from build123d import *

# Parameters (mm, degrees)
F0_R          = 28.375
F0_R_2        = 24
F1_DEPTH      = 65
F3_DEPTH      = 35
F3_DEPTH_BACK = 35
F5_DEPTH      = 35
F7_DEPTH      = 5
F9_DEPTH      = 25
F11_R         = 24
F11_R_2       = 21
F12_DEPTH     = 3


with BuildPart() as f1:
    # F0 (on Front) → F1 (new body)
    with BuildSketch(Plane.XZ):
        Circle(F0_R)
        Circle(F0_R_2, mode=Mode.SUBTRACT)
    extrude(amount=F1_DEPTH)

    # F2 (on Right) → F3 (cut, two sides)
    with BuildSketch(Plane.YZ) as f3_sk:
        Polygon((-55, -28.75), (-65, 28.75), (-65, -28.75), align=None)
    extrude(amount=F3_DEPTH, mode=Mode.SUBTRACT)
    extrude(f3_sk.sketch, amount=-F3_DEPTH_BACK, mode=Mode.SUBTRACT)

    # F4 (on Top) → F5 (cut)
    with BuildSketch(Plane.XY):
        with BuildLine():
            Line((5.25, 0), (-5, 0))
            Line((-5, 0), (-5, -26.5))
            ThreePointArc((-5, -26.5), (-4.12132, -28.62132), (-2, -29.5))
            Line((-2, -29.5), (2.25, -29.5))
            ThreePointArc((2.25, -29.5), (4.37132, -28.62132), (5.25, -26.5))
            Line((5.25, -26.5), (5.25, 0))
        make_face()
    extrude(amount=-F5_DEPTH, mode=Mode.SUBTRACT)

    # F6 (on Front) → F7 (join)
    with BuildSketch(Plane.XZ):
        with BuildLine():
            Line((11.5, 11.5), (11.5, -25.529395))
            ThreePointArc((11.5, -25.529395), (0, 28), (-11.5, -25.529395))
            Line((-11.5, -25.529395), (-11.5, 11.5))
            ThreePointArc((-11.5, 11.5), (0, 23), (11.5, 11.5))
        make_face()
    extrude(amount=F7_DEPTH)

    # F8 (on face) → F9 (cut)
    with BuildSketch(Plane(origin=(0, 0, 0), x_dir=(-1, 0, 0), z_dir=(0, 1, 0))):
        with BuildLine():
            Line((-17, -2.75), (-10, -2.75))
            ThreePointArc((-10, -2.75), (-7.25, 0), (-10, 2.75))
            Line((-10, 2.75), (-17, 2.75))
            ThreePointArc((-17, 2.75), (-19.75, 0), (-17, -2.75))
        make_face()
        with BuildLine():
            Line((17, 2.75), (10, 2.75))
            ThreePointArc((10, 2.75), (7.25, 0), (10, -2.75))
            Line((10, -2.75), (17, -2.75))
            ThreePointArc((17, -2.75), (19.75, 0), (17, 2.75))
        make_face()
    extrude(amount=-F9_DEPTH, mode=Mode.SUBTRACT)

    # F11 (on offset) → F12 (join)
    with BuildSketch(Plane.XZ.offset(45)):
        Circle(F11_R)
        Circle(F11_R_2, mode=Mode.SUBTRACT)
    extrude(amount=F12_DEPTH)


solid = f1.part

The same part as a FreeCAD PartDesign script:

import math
import FreeCAD as App
import Part
import Sketcher
from FreeCAD import Vector
Q = App.Units.Quantity


def add_polygon(sketch, points):
    """Adds a closed chain of lines whose ends are joined by coincident constraints."""
    first, n = sketch.GeometryCount, len(points)
    for a, b in zip(points, points[1:] + points[:1]):
        sketch.addGeometry(Part.LineSegment(App.Vector(*a, 0), App.Vector(*b, 0)), False)
    for i in range(n):
        sketch.addConstraint(Sketcher.Constraint("Coincident", first + i, 2, first + (i + 1) % n, 1))

doc = App.newDocument("Part")
body = doc.addObject("PartDesign::Body", "Body")

sketch1 = body.newObject("Sketcher::SketchObject", "Sketch")
sketch1.AttachmentSupport = (doc.getObject("XZ_Plane"), [""])
sketch1.MapMode = "FlatFace"
sketch1.addGeometry([
    Part.Circle(Vector(0, 0, 0), Vector(0, 0, 1), 28.375),
    Part.Circle(Vector(0, 0, 0), Vector(0, 0, 1), 24),
], False)
sketch1.addConstraint([
    Sketcher.Constraint("Coincident", 0, 3, -1, 1),
    Sketcher.Constraint("Coincident", 1, 3, -1, 1),
    Sketcher.Constraint("Diameter", 1, Q("48 mm")),
    Sketcher.Constraint("Diameter", 0, Q("56.75 mm")),
])
pad1 = body.newObject("PartDesign::Pad", "Pad")
pad1.Profile = sketch1
pad1.Length = 65

sketch2 = body.newObject("Sketcher::SketchObject", "Sketch001")
sketch2.AttachmentSupport = (doc.getObject("YZ_Plane"), [""])
sketch2.MapMode = "FlatFace"
add_polygon(sketch2, [(-55, -28.75), (-65, 28.75), (-65, -28.75)])
sketch2.addConstraint([
    Sketcher.Constraint("Vertical", 1),
    Sketcher.Constraint("Horizontal", 2),
    Sketcher.Constraint("DistanceX", 2, 1, 2, 2, Q("10 mm")),
    Sketcher.Constraint("DistanceY", 1, 2, 1, 1, Q("57.5 mm")),
    Sketcher.Constraint("DistanceX", 0, 2, -1, 1, Q("65 mm")),
    Sketcher.Constraint("DistanceY", -1, 1, 0, 2, Q("28.75 mm")),
])
pocket1 = body.newObject("PartDesign::Pocket", "Pocket")
pocket1.Profile = sketch2
pocket1.Type = "ThroughAll"
pocket1.Midplane = True

sketch3 = body.newObject("Sketcher::SketchObject", "Sketch002")
sketch3.AttachmentSupport = (doc.getObject("XY_Plane"), [""])
sketch3.MapMode = "FlatFace"
sketch3.addGeometry([
    Part.LineSegment(Vector(5.25, 0, 0), Vector(-5, 0, 0)),
    Part.LineSegment(Vector(-5, 0, 0), Vector(-5, -26.5, 0)),
    Part.ArcOfCircle(Part.Circle(Vector(-1.999999, -26.499999, 0), Vector(0, 0, 1), 3.000001), math.radians(-179.999978), math.radians(-90.000022)),
    Part.LineSegment(Vector(-2, -29.5, 0), Vector(2.25, -29.5, 0)),
    Part.ArcOfCircle(Part.Circle(Vector(2.249999, -26.499999, 0), Vector(0, 0, 1), 3.000001), math.radians(-89.999978), math.radians(-0.000022)),
    Part.LineSegment(Vector(5.25, -26.5, 0), Vector(5.25, 0, 0)),
], False)
sketch3.addConstraint([
    Sketcher.Constraint("Coincident", 0, 2, 1, 1),
    Sketcher.Constraint("Tangent", 1, 2, 2, 1),
    Sketcher.Constraint("Tangent", 2, 2, 3, 1),
    Sketcher.Constraint("Tangent", 3, 2, 4, 1),
    Sketcher.Constraint("Tangent", 4, 2, 5, 1),
    Sketcher.Constraint("Coincident", 5, 2, 0, 1),
    Sketcher.Constraint("Horizontal", 0),
    Sketcher.Constraint("Vertical", 1),
    Sketcher.Constraint("Horizontal", 3),
    Sketcher.Constraint("Vertical", 5),
    Sketcher.Constraint("Equal", 2, 4),
    Sketcher.Constraint("PointOnObject", 0, 2, -1),
    Sketcher.Constraint("Radius", 2, Q("3.000001 mm")),
    Sketcher.Constraint("DistanceY", 1, 2, 1, 1, Q("26.5 mm")),
    Sketcher.Constraint("DistanceX", 2, 3, -1, 1, Q("1.999999 mm")),
    Sketcher.Constraint("DistanceX", 0, 2, 0, 1, Q("10.25 mm")),
])
pocket2 = body.newObject("PartDesign::Pocket", "Pocket001")
pocket2.Profile = sketch3
pocket2.Length = 35

sketch4 = body.newObject("Sketcher::SketchObject", "Sketch003")
sketch4.AttachmentSupport = (doc.getObject("XZ_Plane"), [""])
sketch4.MapMode = "FlatFace"
sketch4.addGeometry([
    Part.LineSegment(Vector(11.5, 11.5, 0), Vector(11.5, -25.529395, 0)),
    Part.ArcOfCircle(Part.Circle(Vector(0, 0, 0), Vector(0, 0, 1), 28), math.radians(-65.750287), math.radians(245.750287)),
    Part.LineSegment(Vector(-11.5, -25.529395, 0), Vector(-11.5, 11.5, 0)),
    Part.ArcOfCircle(Part.Circle(Vector(0, 11.5, 0), Vector(0, 0, 1), 11.5), math.radians(0), math.radians(180)),
], False)
sketch4.addConstraint([
    Sketcher.Constraint("Coincident", 0, 2, 1, 1),
    Sketcher.Constraint("Coincident", 1, 2, 2, 1),
    Sketcher.Constraint("Tangent", 2, 2, 3, 2),
    Sketcher.Constraint("Tangent", 3, 1, 0, 1),
    Sketcher.Constraint("Vertical", 0),
    Sketcher.Constraint("Vertical", 2),
    Sketcher.Constraint("Coincident", 1, 3, -1, 1),
    Sketcher.Constraint("PointOnObject", 3, 3, -2),
    Sketcher.Constraint("Radius", 1, Q("28 mm")),
    Sketcher.Constraint("Radius", 3, Q("11.5 mm")),
    Sketcher.Constraint("DistanceY", -1, 1, 3, 3, Q("11.5 mm")),
])
pad2 = body.newObject("PartDesign::Pad", "Pad001")
pad2.Profile = sketch4
pad2.Length = 5

sketch5 = body.newObject("Sketcher::SketchObject", "Sketch004")
sketch5.AttachmentSupport = (doc.getObject("XZ_Plane"), [""])
sketch5.MapMode = "FlatFace"
sketch5.addGeometry([
    Part.LineSegment(Vector(17, -2.75, 0), Vector(10, -2.75, 0)),
    Part.ArcOfCircle(Part.Circle(Vector(10, 0, 0), Vector(0, 0, 1), 2.75), math.radians(90), math.radians(270)),
    Part.LineSegment(Vector(10, 2.75, 0), Vector(17, 2.75, 0)),
    Part.ArcOfCircle(Part.Circle(Vector(17, 0, 0), Vector(0, 0, 1), 2.75), math.radians(-90), math.radians(90)),
    Part.LineSegment(Vector(-17, 2.75, 0), Vector(-10, 2.75, 0)),
    Part.ArcOfCircle(Part.Circle(Vector(-10, 0, 0), Vector(0, 0, 1), 2.75), math.radians(-90), math.radians(90)),
    Part.LineSegment(Vector(-10, -2.75, 0), Vector(-17, -2.75, 0)),
    Part.ArcOfCircle(Part.Circle(Vector(-17, 0, 0), Vector(0, 0, 1), 2.75), math.radians(90), math.radians(270)),
], False)
sketch5.addConstraint([
    Sketcher.Constraint("Tangent", 0, 2, 1, 2),
    Sketcher.Constraint("Tangent", 1, 1, 2, 1),
    Sketcher.Constraint("Tangent", 2, 2, 3, 2),
    Sketcher.Constraint("Tangent", 3, 1, 0, 1),
    Sketcher.Constraint("Tangent", 4, 2, 5, 2),
    Sketcher.Constraint("Tangent", 5, 1, 6, 1),
    Sketcher.Constraint("Tangent", 6, 2, 7, 2),
    Sketcher.Constraint("Tangent", 7, 1, 4, 1),
    Sketcher.Constraint("Horizontal", 0),
    Sketcher.Constraint("Horizontal", 2),
    Sketcher.Constraint("Horizontal", 4),
    Sketcher.Constraint("Horizontal", 6),
    Sketcher.Constraint("Equal", 3, 5),
    Sketcher.Constraint("Symmetric", 1, 3, 5, 3, -1, 1),
    Sketcher.Constraint("Symmetric", 3, 3, 7, 3, -2),
    Sketcher.Constraint("DistanceX", 0, 2, 0, 1, Q("7 mm")),
    Sketcher.Constraint("Radius", 1, Q("2.75 mm")),
    Sketcher.Constraint("DistanceX", -1, 1, 1, 3, Q("10 mm")),
])
pocket3 = body.newObject("PartDesign::Pocket", "Pocket002")
pocket3.Profile = sketch5
pocket3.Length = 25
pocket3.Reversed = True

sketch6 = body.newObject("Sketcher::SketchObject", "Sketch005")
sketch6.AttachmentSupport = (doc.getObject("XZ_Plane"), [""])
sketch6.MapMode = "FlatFace"
sketch6.AttachmentOffset = App.Placement(Vector(0, 0, 45), App.Rotation())
sketch6.addGeometry([
    Part.Circle(Vector(0, 0, 0), Vector(0, 0, 1), 24),
    Part.Circle(Vector(0, 0, 0), Vector(0, 0, 1), 21),
], False)
sketch6.addConstraint([
    Sketcher.Constraint("Coincident", 0, 3, -1, 1),
    Sketcher.Constraint("Coincident", 1, 3, -1, 1),
    Sketcher.Constraint("Diameter", 0, Q("48 mm")),
    Sketcher.Constraint("Diameter", 1, Q("42 mm")),
])
pad3 = body.newObject("PartDesign::Pad", "Pad002")
pad3.Profile = sketch6
pad3.Length = 3

doc.recompute()
